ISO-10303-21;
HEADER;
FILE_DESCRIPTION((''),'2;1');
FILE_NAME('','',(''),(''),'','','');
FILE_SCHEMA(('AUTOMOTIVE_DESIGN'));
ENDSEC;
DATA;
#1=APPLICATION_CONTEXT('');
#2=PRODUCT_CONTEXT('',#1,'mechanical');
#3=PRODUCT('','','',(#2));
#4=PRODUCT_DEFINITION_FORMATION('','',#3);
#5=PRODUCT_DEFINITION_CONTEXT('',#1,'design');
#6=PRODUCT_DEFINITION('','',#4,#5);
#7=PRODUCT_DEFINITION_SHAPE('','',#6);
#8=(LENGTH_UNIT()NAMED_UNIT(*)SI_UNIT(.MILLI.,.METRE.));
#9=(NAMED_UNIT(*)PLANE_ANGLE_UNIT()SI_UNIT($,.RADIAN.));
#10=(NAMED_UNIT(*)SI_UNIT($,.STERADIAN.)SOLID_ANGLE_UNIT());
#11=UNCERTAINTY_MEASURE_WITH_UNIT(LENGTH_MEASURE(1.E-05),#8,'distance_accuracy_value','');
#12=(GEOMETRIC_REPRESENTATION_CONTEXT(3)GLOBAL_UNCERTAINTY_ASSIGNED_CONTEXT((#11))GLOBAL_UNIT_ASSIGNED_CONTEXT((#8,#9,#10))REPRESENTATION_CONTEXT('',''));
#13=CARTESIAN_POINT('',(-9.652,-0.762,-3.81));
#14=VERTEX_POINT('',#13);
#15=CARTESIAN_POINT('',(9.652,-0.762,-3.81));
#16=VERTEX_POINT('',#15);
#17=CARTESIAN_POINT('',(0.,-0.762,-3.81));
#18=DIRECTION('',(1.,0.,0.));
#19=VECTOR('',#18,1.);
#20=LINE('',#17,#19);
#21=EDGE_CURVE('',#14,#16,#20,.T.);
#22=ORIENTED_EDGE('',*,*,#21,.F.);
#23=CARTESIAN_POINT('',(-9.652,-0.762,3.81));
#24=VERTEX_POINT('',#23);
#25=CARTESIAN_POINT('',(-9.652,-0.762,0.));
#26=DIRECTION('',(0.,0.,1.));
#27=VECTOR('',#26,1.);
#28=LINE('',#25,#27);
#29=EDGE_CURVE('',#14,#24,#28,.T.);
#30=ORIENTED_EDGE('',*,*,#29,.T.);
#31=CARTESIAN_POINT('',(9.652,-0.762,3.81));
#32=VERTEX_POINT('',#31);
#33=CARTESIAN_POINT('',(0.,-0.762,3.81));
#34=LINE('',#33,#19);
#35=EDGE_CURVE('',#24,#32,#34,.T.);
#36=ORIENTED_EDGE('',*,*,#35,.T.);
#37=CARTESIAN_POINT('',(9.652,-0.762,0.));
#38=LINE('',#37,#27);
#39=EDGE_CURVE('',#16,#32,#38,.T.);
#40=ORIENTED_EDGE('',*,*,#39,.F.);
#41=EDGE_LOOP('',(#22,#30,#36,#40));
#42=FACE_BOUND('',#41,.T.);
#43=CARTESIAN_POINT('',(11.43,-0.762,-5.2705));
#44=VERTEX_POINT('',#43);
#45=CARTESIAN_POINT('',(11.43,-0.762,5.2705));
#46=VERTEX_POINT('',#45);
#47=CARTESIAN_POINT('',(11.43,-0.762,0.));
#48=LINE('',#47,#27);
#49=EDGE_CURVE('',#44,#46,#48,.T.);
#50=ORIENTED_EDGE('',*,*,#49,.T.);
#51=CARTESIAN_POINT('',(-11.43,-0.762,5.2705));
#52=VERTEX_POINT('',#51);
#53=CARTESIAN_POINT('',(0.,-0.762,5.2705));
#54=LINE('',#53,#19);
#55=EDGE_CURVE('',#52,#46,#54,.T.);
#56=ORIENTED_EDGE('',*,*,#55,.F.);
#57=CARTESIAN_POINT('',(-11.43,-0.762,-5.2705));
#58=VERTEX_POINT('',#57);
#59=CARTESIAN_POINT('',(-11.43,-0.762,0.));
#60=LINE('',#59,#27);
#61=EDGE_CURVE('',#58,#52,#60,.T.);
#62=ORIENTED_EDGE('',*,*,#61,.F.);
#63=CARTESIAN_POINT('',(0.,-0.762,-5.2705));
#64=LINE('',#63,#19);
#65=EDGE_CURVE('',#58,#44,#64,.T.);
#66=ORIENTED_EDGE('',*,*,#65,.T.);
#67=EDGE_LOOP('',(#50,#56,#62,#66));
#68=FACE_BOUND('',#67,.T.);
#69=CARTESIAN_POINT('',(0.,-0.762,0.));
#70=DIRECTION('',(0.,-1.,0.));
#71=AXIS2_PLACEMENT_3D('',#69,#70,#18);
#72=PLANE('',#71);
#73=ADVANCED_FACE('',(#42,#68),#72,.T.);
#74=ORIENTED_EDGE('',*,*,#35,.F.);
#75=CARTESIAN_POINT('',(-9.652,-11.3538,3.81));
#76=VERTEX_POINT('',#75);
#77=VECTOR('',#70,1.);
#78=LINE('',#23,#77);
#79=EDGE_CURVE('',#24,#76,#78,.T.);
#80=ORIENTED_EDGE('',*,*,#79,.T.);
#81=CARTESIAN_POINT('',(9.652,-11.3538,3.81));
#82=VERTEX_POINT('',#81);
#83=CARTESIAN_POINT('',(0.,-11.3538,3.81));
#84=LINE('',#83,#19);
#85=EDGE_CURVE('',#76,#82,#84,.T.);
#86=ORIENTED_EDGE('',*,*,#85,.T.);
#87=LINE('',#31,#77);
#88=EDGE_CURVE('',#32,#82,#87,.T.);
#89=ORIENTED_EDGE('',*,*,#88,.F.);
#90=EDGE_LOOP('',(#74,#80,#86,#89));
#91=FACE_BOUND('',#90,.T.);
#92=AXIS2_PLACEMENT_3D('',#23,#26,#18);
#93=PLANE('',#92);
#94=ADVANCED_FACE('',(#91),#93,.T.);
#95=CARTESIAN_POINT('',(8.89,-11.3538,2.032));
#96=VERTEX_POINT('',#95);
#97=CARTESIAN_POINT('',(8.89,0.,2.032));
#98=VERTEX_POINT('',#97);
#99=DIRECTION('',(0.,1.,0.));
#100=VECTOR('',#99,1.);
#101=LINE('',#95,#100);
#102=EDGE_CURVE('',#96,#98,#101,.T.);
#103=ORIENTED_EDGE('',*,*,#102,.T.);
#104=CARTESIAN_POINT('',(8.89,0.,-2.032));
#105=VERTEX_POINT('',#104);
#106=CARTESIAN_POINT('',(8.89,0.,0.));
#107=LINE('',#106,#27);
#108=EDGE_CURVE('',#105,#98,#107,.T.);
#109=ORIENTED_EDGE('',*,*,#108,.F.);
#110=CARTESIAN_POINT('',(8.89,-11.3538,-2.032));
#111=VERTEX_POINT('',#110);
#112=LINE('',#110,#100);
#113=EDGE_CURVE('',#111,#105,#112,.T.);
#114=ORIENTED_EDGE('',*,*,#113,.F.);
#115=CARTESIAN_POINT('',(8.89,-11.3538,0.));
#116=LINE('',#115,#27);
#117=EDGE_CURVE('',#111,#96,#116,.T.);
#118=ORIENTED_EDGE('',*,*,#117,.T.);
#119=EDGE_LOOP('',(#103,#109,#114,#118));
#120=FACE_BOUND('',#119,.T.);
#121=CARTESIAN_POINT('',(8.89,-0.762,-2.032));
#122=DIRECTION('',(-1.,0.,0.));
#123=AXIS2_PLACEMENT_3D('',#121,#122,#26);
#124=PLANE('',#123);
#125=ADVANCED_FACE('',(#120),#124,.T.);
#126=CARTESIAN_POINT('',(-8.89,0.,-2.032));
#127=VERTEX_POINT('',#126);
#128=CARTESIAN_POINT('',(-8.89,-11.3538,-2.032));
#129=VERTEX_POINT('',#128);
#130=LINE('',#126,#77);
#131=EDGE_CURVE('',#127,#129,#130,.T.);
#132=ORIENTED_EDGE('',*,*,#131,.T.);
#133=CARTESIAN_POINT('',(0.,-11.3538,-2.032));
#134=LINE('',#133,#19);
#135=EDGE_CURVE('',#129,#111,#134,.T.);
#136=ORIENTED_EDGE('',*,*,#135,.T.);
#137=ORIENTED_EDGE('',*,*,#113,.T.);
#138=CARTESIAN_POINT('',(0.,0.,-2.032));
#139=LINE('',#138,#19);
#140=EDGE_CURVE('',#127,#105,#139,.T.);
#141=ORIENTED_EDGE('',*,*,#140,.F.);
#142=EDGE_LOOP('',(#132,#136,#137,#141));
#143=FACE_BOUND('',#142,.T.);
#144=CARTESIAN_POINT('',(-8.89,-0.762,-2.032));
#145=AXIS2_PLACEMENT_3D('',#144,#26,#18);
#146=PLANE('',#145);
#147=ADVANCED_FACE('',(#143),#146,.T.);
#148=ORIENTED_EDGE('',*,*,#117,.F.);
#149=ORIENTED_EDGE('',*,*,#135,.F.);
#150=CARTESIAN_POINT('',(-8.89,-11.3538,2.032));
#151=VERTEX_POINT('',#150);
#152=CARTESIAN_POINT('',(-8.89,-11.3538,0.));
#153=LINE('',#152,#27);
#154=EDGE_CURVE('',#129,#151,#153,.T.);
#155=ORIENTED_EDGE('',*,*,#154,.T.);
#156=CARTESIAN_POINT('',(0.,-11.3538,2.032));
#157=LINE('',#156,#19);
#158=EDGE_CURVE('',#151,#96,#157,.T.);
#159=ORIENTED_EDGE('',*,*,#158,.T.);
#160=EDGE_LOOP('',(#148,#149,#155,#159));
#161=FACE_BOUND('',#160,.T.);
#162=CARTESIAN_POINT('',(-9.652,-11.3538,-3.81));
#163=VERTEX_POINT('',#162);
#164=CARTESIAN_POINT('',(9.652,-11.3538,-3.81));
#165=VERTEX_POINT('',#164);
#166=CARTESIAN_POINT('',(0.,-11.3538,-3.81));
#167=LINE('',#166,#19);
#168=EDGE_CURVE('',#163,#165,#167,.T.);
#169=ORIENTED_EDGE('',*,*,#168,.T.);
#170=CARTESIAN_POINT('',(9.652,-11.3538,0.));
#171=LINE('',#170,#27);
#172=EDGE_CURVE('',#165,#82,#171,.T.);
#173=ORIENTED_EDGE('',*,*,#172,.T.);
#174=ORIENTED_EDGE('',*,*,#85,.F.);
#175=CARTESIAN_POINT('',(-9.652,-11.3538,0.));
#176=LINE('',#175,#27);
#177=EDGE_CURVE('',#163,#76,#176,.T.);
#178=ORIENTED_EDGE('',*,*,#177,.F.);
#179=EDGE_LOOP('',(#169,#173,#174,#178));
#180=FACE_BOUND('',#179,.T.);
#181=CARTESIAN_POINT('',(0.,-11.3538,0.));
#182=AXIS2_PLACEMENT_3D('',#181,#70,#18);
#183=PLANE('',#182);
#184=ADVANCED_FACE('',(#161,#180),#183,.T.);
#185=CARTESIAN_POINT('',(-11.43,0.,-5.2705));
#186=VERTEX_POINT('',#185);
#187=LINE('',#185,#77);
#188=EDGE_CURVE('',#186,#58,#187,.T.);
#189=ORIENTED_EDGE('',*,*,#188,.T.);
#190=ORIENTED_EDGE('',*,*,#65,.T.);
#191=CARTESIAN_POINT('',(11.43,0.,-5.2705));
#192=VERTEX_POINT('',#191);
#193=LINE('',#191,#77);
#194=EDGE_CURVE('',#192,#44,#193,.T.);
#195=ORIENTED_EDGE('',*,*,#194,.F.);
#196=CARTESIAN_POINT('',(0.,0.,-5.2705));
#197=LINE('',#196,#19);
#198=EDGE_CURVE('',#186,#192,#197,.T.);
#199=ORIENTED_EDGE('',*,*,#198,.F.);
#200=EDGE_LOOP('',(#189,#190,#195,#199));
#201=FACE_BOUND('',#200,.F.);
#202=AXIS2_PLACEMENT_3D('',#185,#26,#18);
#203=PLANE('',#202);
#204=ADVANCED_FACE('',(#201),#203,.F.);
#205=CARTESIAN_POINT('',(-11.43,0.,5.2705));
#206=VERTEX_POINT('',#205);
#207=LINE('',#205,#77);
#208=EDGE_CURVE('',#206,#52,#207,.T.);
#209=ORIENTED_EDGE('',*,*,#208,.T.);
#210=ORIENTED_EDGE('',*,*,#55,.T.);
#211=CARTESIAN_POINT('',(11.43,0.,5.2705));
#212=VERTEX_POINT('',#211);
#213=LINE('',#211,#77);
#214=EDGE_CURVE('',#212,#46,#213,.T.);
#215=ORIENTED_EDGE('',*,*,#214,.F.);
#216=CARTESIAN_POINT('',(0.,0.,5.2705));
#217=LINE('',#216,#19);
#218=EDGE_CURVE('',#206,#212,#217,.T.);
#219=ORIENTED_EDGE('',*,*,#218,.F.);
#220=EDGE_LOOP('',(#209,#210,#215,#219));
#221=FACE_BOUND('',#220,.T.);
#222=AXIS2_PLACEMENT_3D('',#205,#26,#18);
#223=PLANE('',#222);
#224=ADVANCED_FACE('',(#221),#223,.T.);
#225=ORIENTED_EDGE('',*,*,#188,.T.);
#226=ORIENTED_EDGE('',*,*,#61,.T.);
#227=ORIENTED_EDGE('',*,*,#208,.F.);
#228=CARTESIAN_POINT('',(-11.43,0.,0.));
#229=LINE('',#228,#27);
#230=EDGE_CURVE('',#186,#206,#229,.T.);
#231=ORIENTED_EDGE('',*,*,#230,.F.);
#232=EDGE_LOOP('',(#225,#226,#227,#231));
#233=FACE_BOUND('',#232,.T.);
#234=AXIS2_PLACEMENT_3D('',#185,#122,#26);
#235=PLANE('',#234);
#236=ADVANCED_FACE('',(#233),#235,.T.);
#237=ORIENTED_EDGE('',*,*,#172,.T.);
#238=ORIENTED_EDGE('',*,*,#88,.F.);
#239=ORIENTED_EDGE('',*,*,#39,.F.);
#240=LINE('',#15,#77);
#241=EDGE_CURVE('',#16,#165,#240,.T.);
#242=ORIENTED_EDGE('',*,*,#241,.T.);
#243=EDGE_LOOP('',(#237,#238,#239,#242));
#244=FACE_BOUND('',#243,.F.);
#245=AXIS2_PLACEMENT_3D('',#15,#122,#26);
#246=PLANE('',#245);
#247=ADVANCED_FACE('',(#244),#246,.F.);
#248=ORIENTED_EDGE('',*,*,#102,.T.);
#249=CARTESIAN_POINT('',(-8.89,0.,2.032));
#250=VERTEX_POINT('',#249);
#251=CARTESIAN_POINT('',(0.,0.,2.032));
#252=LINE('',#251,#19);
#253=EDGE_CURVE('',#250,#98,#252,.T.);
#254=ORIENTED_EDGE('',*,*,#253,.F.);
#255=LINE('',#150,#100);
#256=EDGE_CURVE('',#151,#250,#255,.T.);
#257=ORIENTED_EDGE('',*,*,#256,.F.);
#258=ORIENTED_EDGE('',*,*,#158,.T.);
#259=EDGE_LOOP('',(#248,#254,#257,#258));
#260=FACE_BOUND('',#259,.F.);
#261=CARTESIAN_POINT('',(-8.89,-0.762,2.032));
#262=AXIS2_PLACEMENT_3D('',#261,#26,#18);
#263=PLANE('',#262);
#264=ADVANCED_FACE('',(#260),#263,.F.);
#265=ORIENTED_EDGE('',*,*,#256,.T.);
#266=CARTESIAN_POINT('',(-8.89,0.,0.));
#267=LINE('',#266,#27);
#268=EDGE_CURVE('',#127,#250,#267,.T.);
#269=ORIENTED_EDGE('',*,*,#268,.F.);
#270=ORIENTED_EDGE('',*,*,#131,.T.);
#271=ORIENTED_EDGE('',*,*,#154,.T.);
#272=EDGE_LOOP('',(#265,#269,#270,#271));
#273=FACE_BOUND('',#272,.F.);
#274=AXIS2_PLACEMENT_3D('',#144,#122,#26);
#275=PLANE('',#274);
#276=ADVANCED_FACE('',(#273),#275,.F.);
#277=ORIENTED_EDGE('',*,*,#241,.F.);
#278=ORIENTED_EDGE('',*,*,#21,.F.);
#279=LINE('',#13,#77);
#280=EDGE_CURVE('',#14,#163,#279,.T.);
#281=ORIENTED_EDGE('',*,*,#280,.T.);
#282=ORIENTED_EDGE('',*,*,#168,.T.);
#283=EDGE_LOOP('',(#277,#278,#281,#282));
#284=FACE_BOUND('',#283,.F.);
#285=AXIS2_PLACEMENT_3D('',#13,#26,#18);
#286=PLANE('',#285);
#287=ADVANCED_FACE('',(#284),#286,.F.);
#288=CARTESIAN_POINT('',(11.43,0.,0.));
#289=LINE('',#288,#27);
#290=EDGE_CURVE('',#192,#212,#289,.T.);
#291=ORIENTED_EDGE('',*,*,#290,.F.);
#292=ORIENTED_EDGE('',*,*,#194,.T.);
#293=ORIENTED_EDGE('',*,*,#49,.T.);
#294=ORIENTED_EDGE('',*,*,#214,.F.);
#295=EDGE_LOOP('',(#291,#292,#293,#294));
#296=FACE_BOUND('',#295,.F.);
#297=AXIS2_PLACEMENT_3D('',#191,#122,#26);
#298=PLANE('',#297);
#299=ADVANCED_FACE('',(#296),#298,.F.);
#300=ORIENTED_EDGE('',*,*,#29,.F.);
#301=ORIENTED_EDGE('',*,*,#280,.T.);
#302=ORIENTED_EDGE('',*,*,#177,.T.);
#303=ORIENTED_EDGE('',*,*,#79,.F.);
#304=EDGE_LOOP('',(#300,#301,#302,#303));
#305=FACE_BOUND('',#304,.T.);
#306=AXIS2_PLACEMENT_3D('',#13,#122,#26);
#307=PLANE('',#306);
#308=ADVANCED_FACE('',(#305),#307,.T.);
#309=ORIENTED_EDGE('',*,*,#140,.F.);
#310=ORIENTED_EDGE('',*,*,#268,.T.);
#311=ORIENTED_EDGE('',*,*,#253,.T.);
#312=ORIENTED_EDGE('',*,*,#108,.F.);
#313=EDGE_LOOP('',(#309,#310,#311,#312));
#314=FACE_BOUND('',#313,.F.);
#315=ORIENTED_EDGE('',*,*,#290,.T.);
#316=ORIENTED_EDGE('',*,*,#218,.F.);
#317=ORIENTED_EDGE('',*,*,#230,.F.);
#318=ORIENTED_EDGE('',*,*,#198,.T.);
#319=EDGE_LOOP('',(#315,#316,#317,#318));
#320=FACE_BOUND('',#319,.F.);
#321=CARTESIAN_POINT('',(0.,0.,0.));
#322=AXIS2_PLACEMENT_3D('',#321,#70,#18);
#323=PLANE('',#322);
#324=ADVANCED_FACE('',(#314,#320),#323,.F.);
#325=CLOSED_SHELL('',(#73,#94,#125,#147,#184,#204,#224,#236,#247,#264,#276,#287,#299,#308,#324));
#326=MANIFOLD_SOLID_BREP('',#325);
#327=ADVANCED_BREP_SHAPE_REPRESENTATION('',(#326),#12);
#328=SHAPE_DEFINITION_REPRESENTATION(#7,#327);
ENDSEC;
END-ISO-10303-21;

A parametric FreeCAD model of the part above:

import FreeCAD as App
import Part
import Sketcher
Q = App.Units.Quantity


def add_polygon(sketch, points):
    """Adds a closed chain of lines whose ends are joined by coincident constraints."""
    first, n = sketch.GeometryCount, len(points)
    for a, b in zip(points, points[1:] + points[:1]):
        sketch.addGeometry(Part.LineSegment(App.Vector(*a, 0), App.Vector(*b, 0)), False)
    for i in range(n):
        sketch.addConstraint(Sketcher.Constraint("Coincident", first + i, 2, first + (i + 1) % n, 1))

doc = App.newDocument("Part")
body = doc.addObject("PartDesign::Body", "Body")

# Sketch on XZ plane
sketch1 = body.newObject("Sketcher::SketchObject", "Sketch")
sketch1.AttachmentSupport = (doc.getObject("XZ_Plane"), [""])
sketch1.MapMode = "FlatFace"
add_polygon(sketch1, [(-11.4, 5.3), (-11.4, -5.3), (11.4, -5.3), (11.4, 5.3)])  # lines 0-3
add_polygon(sketch1, [(8.9, -2), (-8.9, -2), (-8.9, 2), (8.9, 2)])  # lines 4-7
sketch1.addConstraint([
    Sketcher.Constraint("Vertical", 0),
    Sketcher.Constraint("Horizontal", 1),
    Sketcher.Constraint("Vertical", 2),
    Sketcher.Constraint("Horizontal", 3),
    Sketcher.Constraint("Horizontal", 4),
    Sketcher.Constraint("Vertical", 5),
    Sketcher.Constraint("Horizontal", 6),
    Sketcher.Constraint("Vertical", 7),
    Sketcher.Constraint("Symmetric", 0, 2, 2, 2, -1, 1),
    Sketcher.Constraint("Symmetric", 4, 2, 6, 2, -1, 1),
    Sketcher.Constraint("DistanceX", 1, 1, 1, 2, Q("0.9 in")),
    Sketcher.Constraint("DistanceX", 4, 2, 4, 1, Q("0.7 in")),
    Sketcher.Constraint("DistanceY", 5, 1, 5, 2, Q("0.16 in")),
    Sketcher.Constraint("DistanceY", 0, 2, 0, 1, Q("0.415 in")),
])
pad1 = body.newObject("PartDesign::Pad", "Pad")
pad1.Profile = sketch1
pad1.Length = Q("0.03 in")

# Sketch on XZ plane
sketch2 = body.newObject("Sketcher::SketchObject", "Sketch001")
sketch2.AttachmentSupport = (doc.getObject("XZ_Plane"), [""])
sketch2.MapMode = "FlatFace"
sketch2.AttachmentOffset = App.Placement(App.Vector(0, 0, 0.03 * 25.4), App.Rotation())
add_polygon(sketch2, [(-9.7, 3.8), (-9.7, -3.8), (9.7, -3.8), (9.7, 3.8)])  # lines 0-3
add_polygon(sketch2, [(8.9, -2), (-8.9, -2), (-8.9, 2), (8.9, 2)])  # lines 4-7
sketch2.addConstraint([
    Sketcher.Constraint("Vertical", 0),
    Sketcher.Constraint("Horizontal", 1),
    Sketcher.Constraint("Vertical", 2),
    Sketcher.Constraint("Horizontal", 3),
    Sketcher.Constraint("Horizontal", 4),
    Sketcher.Constraint("Vertical", 5),
    Sketcher.Constraint("Horizontal", 6),
    Sketcher.Constraint("Vertical", 7),
    Sketcher.Constraint("Symmetric", 0, 2, 2, 2, -1, 1),
    Sketcher.Constraint("Symmetric", 4, 2, 6, 2, -1, 1),
    Sketcher.Constraint("DistanceX", 4, 2, 4, 1, Q("0.7 in")),
    Sketcher.Constraint("DistanceY", 0, 2, 0, 1, Q("0.3 in")),
    Sketcher.Constraint("DistanceX", 1, 1, 1, 2, Q("0.76 in")),
    Sketcher.Constraint("DistanceY", 5, 1, 5, 2, Q("0.16 in")),
])
pad2 = body.newObject("PartDesign::Pad", "Pad001")
pad2.Profile = sketch2
pad2.Length = Q("0.417 in")

doc.recompute()
